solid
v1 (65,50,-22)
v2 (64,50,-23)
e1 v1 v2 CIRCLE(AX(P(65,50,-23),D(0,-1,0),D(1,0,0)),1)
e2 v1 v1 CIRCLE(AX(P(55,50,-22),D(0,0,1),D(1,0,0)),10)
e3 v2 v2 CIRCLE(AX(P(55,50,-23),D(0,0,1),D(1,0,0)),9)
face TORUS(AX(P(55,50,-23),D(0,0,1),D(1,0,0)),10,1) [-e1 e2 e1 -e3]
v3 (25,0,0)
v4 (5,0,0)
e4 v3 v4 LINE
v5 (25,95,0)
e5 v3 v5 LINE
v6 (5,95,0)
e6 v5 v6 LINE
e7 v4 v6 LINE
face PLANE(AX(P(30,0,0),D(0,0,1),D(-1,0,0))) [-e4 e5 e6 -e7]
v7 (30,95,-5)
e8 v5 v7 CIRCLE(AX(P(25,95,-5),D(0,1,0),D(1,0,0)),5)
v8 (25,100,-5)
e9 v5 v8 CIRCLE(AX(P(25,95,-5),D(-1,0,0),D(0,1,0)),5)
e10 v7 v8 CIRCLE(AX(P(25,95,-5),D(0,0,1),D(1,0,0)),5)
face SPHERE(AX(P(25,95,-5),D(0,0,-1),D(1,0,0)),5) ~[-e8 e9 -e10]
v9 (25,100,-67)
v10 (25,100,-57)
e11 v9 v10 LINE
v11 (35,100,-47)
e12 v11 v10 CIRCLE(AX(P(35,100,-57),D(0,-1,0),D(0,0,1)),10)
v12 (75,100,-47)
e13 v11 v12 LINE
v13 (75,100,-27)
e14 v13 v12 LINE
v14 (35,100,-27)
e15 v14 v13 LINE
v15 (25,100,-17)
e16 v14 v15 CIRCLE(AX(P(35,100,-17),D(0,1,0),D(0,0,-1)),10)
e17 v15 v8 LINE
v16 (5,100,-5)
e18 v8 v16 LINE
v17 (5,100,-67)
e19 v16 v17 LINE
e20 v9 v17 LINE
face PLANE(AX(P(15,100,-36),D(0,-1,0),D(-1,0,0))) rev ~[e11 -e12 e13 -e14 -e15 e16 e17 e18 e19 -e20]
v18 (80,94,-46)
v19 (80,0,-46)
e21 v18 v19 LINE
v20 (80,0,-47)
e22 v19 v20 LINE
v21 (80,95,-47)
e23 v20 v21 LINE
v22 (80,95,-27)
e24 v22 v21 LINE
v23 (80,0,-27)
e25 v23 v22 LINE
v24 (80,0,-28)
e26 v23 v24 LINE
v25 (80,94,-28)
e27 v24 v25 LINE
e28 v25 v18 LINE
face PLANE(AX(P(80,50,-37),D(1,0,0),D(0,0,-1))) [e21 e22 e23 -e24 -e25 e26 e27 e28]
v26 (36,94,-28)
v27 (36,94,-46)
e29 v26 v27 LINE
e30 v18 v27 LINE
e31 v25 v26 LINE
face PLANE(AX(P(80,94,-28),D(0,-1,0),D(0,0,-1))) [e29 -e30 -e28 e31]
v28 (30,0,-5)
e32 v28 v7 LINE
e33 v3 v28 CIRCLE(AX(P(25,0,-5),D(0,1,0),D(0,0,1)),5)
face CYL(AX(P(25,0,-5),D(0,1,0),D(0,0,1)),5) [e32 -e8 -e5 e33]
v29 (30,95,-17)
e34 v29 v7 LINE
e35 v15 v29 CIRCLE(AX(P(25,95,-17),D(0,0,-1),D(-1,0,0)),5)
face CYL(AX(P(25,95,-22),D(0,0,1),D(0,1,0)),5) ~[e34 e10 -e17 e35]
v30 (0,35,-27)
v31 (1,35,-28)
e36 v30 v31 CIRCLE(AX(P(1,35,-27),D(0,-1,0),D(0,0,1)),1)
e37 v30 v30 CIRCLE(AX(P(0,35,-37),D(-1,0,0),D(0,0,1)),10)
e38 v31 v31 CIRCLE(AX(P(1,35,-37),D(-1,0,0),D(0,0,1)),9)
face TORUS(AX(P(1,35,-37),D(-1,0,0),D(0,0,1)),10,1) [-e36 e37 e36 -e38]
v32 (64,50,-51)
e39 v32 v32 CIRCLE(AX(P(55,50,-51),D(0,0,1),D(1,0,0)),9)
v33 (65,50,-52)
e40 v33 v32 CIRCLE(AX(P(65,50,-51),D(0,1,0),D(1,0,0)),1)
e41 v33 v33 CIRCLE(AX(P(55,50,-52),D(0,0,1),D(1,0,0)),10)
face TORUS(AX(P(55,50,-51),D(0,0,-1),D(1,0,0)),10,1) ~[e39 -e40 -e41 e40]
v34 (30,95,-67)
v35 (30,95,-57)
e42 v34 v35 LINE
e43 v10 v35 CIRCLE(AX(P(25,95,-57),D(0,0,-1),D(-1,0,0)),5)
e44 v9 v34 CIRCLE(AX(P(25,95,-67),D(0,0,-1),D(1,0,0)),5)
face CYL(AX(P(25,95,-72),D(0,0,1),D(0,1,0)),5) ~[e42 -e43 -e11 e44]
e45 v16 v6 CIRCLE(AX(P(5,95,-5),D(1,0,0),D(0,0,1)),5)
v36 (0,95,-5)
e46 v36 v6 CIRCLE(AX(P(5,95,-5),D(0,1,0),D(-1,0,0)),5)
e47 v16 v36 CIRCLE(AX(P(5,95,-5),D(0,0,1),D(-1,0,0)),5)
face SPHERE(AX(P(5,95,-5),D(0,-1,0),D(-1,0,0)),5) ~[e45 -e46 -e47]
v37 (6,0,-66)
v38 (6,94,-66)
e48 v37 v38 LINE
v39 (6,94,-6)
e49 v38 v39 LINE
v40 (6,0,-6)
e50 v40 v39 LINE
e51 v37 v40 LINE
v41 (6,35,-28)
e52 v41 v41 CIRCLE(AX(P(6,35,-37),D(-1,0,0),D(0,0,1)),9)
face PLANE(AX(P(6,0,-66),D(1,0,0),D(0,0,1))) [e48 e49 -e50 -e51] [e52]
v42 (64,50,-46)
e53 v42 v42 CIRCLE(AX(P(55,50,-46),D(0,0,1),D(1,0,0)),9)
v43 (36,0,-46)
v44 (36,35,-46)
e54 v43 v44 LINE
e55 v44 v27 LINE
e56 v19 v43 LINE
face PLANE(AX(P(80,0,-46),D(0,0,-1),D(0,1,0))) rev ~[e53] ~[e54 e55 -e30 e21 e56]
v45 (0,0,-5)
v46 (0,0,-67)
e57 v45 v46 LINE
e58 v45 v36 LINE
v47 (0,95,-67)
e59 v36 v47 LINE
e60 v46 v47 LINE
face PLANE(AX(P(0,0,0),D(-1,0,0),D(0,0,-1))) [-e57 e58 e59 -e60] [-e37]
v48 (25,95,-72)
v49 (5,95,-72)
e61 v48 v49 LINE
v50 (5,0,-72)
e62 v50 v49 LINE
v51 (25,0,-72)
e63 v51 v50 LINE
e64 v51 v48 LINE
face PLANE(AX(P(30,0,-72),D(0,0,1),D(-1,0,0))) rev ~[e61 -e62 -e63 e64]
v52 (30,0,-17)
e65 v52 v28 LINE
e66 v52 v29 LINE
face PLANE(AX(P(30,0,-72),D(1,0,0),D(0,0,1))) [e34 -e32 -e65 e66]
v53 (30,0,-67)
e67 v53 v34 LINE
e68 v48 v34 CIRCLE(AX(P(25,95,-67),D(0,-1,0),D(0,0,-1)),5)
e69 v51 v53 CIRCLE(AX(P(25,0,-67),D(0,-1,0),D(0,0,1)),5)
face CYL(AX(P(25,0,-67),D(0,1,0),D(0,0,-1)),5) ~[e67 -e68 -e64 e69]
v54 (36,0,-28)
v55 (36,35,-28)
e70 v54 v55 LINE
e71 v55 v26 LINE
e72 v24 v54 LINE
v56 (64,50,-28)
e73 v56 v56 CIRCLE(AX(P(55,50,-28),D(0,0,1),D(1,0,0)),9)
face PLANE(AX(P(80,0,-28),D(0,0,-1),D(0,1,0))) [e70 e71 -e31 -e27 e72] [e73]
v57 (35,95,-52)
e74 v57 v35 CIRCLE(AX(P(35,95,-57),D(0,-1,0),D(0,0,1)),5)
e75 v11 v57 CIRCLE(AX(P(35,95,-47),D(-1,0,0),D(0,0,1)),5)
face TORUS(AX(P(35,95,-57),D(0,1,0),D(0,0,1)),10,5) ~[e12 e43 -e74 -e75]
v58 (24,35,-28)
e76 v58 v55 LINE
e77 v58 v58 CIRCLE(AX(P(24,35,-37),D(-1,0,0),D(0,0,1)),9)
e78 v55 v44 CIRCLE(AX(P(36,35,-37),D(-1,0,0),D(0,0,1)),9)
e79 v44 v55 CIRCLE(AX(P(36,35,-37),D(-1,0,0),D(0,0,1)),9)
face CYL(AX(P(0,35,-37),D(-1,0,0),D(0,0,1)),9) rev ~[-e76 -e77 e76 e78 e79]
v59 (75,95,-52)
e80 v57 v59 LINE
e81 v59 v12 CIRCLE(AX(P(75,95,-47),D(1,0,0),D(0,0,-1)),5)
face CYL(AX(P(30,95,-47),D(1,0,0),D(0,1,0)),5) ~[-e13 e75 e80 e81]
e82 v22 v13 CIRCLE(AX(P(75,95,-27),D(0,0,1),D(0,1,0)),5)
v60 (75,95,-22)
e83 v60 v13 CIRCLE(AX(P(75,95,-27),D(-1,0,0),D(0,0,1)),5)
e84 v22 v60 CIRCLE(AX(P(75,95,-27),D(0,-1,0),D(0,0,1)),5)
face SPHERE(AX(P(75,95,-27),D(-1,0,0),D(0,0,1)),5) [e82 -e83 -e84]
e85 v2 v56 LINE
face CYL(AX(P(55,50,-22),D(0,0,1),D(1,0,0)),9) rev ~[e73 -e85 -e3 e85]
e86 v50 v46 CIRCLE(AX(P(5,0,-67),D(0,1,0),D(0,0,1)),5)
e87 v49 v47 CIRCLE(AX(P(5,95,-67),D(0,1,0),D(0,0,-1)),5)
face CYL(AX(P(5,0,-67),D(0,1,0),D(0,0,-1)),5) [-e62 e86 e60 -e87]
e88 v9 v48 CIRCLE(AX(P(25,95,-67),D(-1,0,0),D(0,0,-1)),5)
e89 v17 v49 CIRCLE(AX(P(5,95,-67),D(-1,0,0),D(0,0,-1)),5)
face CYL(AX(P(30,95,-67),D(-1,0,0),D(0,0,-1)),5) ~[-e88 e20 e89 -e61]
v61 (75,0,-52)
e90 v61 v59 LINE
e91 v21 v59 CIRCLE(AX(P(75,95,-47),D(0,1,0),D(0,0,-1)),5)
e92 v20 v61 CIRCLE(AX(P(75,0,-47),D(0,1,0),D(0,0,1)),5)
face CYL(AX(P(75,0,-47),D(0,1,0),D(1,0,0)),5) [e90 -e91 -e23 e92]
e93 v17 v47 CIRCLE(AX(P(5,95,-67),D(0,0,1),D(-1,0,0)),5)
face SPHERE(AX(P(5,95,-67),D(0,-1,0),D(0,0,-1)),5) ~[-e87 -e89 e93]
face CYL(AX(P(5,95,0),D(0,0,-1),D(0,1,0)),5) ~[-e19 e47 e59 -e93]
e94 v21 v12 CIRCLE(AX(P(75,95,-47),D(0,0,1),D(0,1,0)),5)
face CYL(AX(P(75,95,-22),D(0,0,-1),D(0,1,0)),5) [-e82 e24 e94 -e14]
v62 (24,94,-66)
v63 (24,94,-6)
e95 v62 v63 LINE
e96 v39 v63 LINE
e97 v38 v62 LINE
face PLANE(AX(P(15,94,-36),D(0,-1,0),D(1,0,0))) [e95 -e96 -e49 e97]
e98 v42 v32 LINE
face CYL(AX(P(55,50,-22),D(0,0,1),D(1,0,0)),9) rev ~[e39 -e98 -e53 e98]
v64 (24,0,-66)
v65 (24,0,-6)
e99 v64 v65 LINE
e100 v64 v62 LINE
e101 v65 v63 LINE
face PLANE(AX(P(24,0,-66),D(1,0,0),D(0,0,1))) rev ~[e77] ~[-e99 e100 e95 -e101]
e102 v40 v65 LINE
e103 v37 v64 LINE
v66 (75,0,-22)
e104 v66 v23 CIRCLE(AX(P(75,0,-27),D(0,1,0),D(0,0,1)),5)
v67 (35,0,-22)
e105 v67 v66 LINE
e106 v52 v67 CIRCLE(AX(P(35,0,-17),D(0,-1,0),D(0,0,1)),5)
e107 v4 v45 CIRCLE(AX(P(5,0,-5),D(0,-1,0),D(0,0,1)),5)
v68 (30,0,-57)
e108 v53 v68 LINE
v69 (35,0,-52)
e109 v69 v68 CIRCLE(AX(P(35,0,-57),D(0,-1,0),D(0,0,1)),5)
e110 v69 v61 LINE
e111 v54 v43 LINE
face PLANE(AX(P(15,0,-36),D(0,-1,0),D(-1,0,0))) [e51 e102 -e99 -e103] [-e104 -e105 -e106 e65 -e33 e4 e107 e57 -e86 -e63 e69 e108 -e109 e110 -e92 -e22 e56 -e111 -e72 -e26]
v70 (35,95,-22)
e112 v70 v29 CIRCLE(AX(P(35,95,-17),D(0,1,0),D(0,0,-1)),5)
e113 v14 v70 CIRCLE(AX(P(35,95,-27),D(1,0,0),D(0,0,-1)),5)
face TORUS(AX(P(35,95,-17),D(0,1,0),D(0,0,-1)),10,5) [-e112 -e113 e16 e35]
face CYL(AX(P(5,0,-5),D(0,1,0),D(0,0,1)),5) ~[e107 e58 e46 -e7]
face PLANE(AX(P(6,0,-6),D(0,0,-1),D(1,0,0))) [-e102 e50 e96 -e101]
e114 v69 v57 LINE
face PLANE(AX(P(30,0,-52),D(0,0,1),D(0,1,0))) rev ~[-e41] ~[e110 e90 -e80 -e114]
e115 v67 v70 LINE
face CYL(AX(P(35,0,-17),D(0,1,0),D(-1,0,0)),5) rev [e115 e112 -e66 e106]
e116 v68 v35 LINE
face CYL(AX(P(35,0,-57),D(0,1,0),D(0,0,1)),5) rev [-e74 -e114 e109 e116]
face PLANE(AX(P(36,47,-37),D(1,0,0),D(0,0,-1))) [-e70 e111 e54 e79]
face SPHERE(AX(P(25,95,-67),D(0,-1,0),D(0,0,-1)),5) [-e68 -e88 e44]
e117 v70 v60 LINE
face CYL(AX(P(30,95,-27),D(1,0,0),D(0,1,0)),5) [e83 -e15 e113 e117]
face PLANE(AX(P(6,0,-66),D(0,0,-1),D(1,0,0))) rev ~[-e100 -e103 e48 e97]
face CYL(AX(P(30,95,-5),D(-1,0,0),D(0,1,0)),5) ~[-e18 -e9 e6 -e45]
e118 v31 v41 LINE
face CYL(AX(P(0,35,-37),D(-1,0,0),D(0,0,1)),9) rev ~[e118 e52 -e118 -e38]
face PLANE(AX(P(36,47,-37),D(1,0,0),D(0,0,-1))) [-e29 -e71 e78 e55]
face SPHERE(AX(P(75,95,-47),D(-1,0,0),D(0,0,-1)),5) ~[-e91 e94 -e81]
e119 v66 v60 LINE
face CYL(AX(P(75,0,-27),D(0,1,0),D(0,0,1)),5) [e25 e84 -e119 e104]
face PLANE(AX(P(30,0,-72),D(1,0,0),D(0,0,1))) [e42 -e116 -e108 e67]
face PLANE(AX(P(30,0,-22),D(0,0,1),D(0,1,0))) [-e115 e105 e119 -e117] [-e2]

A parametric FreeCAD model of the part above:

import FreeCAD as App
import Part
import Sketcher

V = App.Vector
Q = App.Units.Quantity


def edges_at(feature, points):
    """Names of the edges that pass closest to the given points."""
    edges = feature.Shape.Edges
    near = lambda p: min(range(len(edges)), key=lambda i: edges[i].distToShape(Part.Vertex(*p))[0])
    return sorted({f"Edge{near(p) + 1}" for p in points})

doc = App.newDocument("Part")
body = doc.addObject("PartDesign::Body", "Body")

# Sketch on XZ plane
sketch1 = body.newObject("Sketcher::SketchObject", "Sketch")
sketch1.AttachmentSupport = (doc.getObject("XZ_Plane"), [""])
sketch1.MapMode = "FlatFace"
sketch1.addGeometry([
    Part.LineSegment(V(30, -72, 0), V(0, -72, 0)),
    Part.LineSegment(V(0, -72, 0), V(0, 0, 0)),
    Part.LineSegment(V(0, 0, 0), V(30, 0, 0)),
    Part.LineSegment(V(30, 0, 0), V(30, -72, 0)),
], False)
sketch1.addConstraint([
    Sketcher.Constraint("Coincident", 0, 2, 1, 1),
    Sketcher.Constraint("Coincident", 1, 2, 2, 1),
    Sketcher.Constraint("Coincident", 2, 2, 3, 1),
    Sketcher.Constraint("Coincident", 3, 2, 0, 1),
    Sketcher.Constraint("Horizontal", 0),
    Sketcher.Constraint("Vertical", 1),
    Sketcher.Constraint("Horizontal", 2),
    Sketcher.Constraint("Vertical", 3),
    Sketcher.Constraint("Coincident", 1, 2, -1, 1),
    Sketcher.Constraint("DistanceX", 0, 2, 0, 1, Q("30 mm")),
    Sketcher.Constraint("DistanceY", 1, 1, 1, 2, Q("72 mm")),
])
pad1 = body.newObject("PartDesign::Pad", "Pad")
pad1.Profile = sketch1
pad1.Length = 100
pad1.Reversed = True

# Sketch on YZ plane
sketch2 = body.newObject("Sketcher::SketchObject", "Sketch001")
sketch2.AttachmentSupport = (doc.getObject("YZ_Plane"), [""])
sketch2.MapMode = "FlatFace"
sketch2.AttachmentOffset = App.Placement(V(0, 0, 30), App.Rotation())
sketch2.addGeometry([
    Part.LineSegment(V(100, -22, 0), V(0, -22, 0)),
    Part.LineSegment(V(0, -22, 0), V(0, -52, 0)),
    Part.LineSegment(V(0, -52, 0), V(100, -52, 0)),
    Part.LineSegment(V(100, -52, 0), V(100, -22, 0)),
], False)
sketch2.addConstraint([
    Sketcher.Constraint("Coincident", 0, 2, 1, 1),
    Sketcher.Constraint("Coincident", 1, 2, 2, 1),
    Sketcher.Constraint("Coincident", 2, 2, 3, 1),
    Sketcher.Constraint("Coincident", 3, 2, 0, 1),
    Sketcher.Constraint("Horizontal", 0),
    Sketcher.Constraint("Vertical", 1),
    Sketcher.Constraint("Horizontal", 2),
    Sketcher.Constraint("Vertical", 3),
    Sketcher.Constraint("PointOnObject", 0, 2, -2),
    Sketcher.Constraint("DistanceX", 0, 2, 0, 1, Q("100 mm")),
    Sketcher.Constraint("DistanceY", 1, 2, 1, 1, Q("30 mm")),
    Sketcher.Constraint("DistanceY", 0, 2, -1, 1, Q("22 mm")),
])
pad2 = body.newObject("PartDesign::Pad", "Pad001")
pad2.Profile = sketch2
pad2.Length = 50

# Sketch on YZ plane
sketch3 = body.newObject("Sketcher::SketchObject", "Sketch002")
sketch3.AttachmentSupport = (doc.getObject("YZ_Plane"), [""])
sketch3.MapMode = "FlatFace"
sketch3.AttachmentOffset = App.Placement(V(0, 0, 80), App.Rotation())
sketch3.addGeometry([
    Part.LineSegment(V(94, -28, 0), V(0, -28, 0)),
    Part.LineSegment(V(0, -28, 0), V(0, -46, 0)),
    Part.LineSegment(V(0, -46, 0), V(94, -46, 0)),
    Part.LineSegment(V(94, -46, 0), V(94, -28, 0)),
], False)
sketch3.addConstraint([
    Sketcher.Constraint("Coincident", 0, 2, 1, 1),
    Sketcher.Constraint("Coincident", 1, 2, 2, 1),
    Sketcher.Constraint("Coincident", 2, 2, 3, 1),
    Sketcher.Constraint("Coincident", 3, 2, 0, 1),
    Sketcher.Constraint("Horizontal", 0),
    Sketcher.Constraint("Vertical", 1),
    Sketcher.Constraint("Horizontal", 2),
    Sketcher.Constraint("Vertical", 3),
    Sketcher.Constraint("PointOnObject", 0, 2, -2),
    Sketcher.Constraint("DistanceX", 0, 2, 0, 1, Q("94 mm")),
    Sketcher.Constraint("DistanceY", 1, 2, 1, 1, Q("18 mm")),
    Sketcher.Constraint("DistanceY", 0, 2, -1, 1, Q("28 mm")),
])
pocket1 = body.newObject("PartDesign::Pocket", "Pocket")
pocket1.Profile = sketch3
pocket1.Length = 44

# Sketch on XZ plane
sketch4 = body.newObject("Sketcher::SketchObject", "Sketch003")
sketch4.AttachmentSupport = (doc.getObject("XZ_Plane"), [""])
sketch4.MapMode = "FlatFace"
sketch4.addGeometry([
    Part.LineSegment(V(6, -6, 0), V(6, -66, 0)),
    Part.LineSegment(V(6, -66, 0), V(24, -66, 0)),
    Part.LineSegment(V(24, -66, 0), V(24, -6, 0)),
    Part.LineSegment(V(24, -6, 0), V(6, -6, 0)),
], False)
sketch4.addConstraint([
    Sketcher.Constraint("Coincident", 0, 2, 1, 1),
    Sketcher.Constraint("Coincident", 1, 2, 2, 1),
    Sketcher.Constraint("Coincident", 2, 2, 3, 1),
    Sketcher.Constraint("Coincident", 3, 2, 0, 1),
    Sketcher.Constraint("Vertical", 0),
    Sketcher.Constraint("Horizontal", 1),
    Sketcher.Constraint("Vertical", 2),
    Sketcher.Constraint("Horizontal", 3),
    Sketcher.Constraint("DistanceX", 1, 1, 1, 2, Q("18 mm")),
    Sketcher.Constraint("DistanceY", 0, 2, 0, 1, Q("60 mm")),
    Sketcher.Constraint("DistanceX", -1, 1, 0, 2, Q("6 mm")),
    Sketcher.Constraint("DistanceY", 0, 2, -1, 1, Q("66 mm")),
])
pocket2 = body.newObject("PartDesign::Pocket", "Pocket001")
pocket2.Profile = sketch4
pocket2.Length = 94

# Sketch on YZ plane
sketch5 = body.newObject("Sketcher::SketchObject", "Sketch004")
sketch5.AttachmentSupport = (doc.getObject("YZ_Plane"), [""])
sketch5.MapMode = "FlatFace"
sketch5.addGeometry(Part.Circle(V(35, -37, 0), V(0, 0, 1), 9), False)
sketch5.addConstraint([
    Sketcher.Constraint("Diameter", 0, Q("18 mm")),
    Sketcher.Constraint("DistanceX", -1, 1, 0, 3, Q("35 mm")),
    Sketcher.Constraint("DistanceY", 0, 3, -1, 1, Q("37 mm")),
])
pocket3 = body.newObject("PartDesign::Pocket", "Pocket002")
pocket3.Profile = sketch5
pocket3.Type = "ThroughAll"
pocket3.Midplane = True
doc.recompute()

fillet = body.newObject("PartDesign::Fillet", "Fillet")
fillet.Base = (pocket3, edges_at(pocket3, [
    (30, 100, -11),
    (0, 50, -72),
    (30, 50, -72),
    (30, 50, 0),
    (0, 50, 0),
    (15, 100, -72),
    (30, 100, -62),
    (30, 50, -22),
    (55, 100, -22),
    (30, 50, -52),
    (55, 100, -52),
    (80, 50, -22),
    (80, 50, -52),
    (80, 100, -37),
    (0, 100, -36),
    (15, 100, 0),
]))
fillet.Radius = 5

# Sketch on XY plane
sketch6 = body.newObject("Sketcher::SketchObject", "Sketch005")
sketch6.AttachmentSupport = (doc.getObject("XY_Plane"), [""])
sketch6.MapMode = "FlatFace"
sketch6.AttachmentOffset = App.Placement(V(0, 0, -22), App.Rotation())
sketch6.addGeometry(Part.Circle(V(55, 50, 0), V(0, 0, 1), 9), False)
sketch6.addConstraint([
    Sketcher.Constraint("Diameter", 0, Q("18 mm")),
    Sketcher.Constraint("DistanceX", -1, 1, 0, 3, Q("55 mm")),
    Sketcher.Constraint("DistanceY", -1, 1, 0, 3, Q("50 mm")),
])
pocket4 = body.newObject("PartDesign::Pocket", "Pocket003")
pocket4.Profile = sketch6
pocket4.Type = "ThroughAll"
doc.recompute()

fillet2 = body.newObject("PartDesign::Fillet", "Fillet001")
fillet2.Base = (pocket4, edges_at(pocket4, [(46, 50, -52), (46, 50, -22), (0, 35, -46)]))
fillet2.Radius = 1

doc.recompute()
